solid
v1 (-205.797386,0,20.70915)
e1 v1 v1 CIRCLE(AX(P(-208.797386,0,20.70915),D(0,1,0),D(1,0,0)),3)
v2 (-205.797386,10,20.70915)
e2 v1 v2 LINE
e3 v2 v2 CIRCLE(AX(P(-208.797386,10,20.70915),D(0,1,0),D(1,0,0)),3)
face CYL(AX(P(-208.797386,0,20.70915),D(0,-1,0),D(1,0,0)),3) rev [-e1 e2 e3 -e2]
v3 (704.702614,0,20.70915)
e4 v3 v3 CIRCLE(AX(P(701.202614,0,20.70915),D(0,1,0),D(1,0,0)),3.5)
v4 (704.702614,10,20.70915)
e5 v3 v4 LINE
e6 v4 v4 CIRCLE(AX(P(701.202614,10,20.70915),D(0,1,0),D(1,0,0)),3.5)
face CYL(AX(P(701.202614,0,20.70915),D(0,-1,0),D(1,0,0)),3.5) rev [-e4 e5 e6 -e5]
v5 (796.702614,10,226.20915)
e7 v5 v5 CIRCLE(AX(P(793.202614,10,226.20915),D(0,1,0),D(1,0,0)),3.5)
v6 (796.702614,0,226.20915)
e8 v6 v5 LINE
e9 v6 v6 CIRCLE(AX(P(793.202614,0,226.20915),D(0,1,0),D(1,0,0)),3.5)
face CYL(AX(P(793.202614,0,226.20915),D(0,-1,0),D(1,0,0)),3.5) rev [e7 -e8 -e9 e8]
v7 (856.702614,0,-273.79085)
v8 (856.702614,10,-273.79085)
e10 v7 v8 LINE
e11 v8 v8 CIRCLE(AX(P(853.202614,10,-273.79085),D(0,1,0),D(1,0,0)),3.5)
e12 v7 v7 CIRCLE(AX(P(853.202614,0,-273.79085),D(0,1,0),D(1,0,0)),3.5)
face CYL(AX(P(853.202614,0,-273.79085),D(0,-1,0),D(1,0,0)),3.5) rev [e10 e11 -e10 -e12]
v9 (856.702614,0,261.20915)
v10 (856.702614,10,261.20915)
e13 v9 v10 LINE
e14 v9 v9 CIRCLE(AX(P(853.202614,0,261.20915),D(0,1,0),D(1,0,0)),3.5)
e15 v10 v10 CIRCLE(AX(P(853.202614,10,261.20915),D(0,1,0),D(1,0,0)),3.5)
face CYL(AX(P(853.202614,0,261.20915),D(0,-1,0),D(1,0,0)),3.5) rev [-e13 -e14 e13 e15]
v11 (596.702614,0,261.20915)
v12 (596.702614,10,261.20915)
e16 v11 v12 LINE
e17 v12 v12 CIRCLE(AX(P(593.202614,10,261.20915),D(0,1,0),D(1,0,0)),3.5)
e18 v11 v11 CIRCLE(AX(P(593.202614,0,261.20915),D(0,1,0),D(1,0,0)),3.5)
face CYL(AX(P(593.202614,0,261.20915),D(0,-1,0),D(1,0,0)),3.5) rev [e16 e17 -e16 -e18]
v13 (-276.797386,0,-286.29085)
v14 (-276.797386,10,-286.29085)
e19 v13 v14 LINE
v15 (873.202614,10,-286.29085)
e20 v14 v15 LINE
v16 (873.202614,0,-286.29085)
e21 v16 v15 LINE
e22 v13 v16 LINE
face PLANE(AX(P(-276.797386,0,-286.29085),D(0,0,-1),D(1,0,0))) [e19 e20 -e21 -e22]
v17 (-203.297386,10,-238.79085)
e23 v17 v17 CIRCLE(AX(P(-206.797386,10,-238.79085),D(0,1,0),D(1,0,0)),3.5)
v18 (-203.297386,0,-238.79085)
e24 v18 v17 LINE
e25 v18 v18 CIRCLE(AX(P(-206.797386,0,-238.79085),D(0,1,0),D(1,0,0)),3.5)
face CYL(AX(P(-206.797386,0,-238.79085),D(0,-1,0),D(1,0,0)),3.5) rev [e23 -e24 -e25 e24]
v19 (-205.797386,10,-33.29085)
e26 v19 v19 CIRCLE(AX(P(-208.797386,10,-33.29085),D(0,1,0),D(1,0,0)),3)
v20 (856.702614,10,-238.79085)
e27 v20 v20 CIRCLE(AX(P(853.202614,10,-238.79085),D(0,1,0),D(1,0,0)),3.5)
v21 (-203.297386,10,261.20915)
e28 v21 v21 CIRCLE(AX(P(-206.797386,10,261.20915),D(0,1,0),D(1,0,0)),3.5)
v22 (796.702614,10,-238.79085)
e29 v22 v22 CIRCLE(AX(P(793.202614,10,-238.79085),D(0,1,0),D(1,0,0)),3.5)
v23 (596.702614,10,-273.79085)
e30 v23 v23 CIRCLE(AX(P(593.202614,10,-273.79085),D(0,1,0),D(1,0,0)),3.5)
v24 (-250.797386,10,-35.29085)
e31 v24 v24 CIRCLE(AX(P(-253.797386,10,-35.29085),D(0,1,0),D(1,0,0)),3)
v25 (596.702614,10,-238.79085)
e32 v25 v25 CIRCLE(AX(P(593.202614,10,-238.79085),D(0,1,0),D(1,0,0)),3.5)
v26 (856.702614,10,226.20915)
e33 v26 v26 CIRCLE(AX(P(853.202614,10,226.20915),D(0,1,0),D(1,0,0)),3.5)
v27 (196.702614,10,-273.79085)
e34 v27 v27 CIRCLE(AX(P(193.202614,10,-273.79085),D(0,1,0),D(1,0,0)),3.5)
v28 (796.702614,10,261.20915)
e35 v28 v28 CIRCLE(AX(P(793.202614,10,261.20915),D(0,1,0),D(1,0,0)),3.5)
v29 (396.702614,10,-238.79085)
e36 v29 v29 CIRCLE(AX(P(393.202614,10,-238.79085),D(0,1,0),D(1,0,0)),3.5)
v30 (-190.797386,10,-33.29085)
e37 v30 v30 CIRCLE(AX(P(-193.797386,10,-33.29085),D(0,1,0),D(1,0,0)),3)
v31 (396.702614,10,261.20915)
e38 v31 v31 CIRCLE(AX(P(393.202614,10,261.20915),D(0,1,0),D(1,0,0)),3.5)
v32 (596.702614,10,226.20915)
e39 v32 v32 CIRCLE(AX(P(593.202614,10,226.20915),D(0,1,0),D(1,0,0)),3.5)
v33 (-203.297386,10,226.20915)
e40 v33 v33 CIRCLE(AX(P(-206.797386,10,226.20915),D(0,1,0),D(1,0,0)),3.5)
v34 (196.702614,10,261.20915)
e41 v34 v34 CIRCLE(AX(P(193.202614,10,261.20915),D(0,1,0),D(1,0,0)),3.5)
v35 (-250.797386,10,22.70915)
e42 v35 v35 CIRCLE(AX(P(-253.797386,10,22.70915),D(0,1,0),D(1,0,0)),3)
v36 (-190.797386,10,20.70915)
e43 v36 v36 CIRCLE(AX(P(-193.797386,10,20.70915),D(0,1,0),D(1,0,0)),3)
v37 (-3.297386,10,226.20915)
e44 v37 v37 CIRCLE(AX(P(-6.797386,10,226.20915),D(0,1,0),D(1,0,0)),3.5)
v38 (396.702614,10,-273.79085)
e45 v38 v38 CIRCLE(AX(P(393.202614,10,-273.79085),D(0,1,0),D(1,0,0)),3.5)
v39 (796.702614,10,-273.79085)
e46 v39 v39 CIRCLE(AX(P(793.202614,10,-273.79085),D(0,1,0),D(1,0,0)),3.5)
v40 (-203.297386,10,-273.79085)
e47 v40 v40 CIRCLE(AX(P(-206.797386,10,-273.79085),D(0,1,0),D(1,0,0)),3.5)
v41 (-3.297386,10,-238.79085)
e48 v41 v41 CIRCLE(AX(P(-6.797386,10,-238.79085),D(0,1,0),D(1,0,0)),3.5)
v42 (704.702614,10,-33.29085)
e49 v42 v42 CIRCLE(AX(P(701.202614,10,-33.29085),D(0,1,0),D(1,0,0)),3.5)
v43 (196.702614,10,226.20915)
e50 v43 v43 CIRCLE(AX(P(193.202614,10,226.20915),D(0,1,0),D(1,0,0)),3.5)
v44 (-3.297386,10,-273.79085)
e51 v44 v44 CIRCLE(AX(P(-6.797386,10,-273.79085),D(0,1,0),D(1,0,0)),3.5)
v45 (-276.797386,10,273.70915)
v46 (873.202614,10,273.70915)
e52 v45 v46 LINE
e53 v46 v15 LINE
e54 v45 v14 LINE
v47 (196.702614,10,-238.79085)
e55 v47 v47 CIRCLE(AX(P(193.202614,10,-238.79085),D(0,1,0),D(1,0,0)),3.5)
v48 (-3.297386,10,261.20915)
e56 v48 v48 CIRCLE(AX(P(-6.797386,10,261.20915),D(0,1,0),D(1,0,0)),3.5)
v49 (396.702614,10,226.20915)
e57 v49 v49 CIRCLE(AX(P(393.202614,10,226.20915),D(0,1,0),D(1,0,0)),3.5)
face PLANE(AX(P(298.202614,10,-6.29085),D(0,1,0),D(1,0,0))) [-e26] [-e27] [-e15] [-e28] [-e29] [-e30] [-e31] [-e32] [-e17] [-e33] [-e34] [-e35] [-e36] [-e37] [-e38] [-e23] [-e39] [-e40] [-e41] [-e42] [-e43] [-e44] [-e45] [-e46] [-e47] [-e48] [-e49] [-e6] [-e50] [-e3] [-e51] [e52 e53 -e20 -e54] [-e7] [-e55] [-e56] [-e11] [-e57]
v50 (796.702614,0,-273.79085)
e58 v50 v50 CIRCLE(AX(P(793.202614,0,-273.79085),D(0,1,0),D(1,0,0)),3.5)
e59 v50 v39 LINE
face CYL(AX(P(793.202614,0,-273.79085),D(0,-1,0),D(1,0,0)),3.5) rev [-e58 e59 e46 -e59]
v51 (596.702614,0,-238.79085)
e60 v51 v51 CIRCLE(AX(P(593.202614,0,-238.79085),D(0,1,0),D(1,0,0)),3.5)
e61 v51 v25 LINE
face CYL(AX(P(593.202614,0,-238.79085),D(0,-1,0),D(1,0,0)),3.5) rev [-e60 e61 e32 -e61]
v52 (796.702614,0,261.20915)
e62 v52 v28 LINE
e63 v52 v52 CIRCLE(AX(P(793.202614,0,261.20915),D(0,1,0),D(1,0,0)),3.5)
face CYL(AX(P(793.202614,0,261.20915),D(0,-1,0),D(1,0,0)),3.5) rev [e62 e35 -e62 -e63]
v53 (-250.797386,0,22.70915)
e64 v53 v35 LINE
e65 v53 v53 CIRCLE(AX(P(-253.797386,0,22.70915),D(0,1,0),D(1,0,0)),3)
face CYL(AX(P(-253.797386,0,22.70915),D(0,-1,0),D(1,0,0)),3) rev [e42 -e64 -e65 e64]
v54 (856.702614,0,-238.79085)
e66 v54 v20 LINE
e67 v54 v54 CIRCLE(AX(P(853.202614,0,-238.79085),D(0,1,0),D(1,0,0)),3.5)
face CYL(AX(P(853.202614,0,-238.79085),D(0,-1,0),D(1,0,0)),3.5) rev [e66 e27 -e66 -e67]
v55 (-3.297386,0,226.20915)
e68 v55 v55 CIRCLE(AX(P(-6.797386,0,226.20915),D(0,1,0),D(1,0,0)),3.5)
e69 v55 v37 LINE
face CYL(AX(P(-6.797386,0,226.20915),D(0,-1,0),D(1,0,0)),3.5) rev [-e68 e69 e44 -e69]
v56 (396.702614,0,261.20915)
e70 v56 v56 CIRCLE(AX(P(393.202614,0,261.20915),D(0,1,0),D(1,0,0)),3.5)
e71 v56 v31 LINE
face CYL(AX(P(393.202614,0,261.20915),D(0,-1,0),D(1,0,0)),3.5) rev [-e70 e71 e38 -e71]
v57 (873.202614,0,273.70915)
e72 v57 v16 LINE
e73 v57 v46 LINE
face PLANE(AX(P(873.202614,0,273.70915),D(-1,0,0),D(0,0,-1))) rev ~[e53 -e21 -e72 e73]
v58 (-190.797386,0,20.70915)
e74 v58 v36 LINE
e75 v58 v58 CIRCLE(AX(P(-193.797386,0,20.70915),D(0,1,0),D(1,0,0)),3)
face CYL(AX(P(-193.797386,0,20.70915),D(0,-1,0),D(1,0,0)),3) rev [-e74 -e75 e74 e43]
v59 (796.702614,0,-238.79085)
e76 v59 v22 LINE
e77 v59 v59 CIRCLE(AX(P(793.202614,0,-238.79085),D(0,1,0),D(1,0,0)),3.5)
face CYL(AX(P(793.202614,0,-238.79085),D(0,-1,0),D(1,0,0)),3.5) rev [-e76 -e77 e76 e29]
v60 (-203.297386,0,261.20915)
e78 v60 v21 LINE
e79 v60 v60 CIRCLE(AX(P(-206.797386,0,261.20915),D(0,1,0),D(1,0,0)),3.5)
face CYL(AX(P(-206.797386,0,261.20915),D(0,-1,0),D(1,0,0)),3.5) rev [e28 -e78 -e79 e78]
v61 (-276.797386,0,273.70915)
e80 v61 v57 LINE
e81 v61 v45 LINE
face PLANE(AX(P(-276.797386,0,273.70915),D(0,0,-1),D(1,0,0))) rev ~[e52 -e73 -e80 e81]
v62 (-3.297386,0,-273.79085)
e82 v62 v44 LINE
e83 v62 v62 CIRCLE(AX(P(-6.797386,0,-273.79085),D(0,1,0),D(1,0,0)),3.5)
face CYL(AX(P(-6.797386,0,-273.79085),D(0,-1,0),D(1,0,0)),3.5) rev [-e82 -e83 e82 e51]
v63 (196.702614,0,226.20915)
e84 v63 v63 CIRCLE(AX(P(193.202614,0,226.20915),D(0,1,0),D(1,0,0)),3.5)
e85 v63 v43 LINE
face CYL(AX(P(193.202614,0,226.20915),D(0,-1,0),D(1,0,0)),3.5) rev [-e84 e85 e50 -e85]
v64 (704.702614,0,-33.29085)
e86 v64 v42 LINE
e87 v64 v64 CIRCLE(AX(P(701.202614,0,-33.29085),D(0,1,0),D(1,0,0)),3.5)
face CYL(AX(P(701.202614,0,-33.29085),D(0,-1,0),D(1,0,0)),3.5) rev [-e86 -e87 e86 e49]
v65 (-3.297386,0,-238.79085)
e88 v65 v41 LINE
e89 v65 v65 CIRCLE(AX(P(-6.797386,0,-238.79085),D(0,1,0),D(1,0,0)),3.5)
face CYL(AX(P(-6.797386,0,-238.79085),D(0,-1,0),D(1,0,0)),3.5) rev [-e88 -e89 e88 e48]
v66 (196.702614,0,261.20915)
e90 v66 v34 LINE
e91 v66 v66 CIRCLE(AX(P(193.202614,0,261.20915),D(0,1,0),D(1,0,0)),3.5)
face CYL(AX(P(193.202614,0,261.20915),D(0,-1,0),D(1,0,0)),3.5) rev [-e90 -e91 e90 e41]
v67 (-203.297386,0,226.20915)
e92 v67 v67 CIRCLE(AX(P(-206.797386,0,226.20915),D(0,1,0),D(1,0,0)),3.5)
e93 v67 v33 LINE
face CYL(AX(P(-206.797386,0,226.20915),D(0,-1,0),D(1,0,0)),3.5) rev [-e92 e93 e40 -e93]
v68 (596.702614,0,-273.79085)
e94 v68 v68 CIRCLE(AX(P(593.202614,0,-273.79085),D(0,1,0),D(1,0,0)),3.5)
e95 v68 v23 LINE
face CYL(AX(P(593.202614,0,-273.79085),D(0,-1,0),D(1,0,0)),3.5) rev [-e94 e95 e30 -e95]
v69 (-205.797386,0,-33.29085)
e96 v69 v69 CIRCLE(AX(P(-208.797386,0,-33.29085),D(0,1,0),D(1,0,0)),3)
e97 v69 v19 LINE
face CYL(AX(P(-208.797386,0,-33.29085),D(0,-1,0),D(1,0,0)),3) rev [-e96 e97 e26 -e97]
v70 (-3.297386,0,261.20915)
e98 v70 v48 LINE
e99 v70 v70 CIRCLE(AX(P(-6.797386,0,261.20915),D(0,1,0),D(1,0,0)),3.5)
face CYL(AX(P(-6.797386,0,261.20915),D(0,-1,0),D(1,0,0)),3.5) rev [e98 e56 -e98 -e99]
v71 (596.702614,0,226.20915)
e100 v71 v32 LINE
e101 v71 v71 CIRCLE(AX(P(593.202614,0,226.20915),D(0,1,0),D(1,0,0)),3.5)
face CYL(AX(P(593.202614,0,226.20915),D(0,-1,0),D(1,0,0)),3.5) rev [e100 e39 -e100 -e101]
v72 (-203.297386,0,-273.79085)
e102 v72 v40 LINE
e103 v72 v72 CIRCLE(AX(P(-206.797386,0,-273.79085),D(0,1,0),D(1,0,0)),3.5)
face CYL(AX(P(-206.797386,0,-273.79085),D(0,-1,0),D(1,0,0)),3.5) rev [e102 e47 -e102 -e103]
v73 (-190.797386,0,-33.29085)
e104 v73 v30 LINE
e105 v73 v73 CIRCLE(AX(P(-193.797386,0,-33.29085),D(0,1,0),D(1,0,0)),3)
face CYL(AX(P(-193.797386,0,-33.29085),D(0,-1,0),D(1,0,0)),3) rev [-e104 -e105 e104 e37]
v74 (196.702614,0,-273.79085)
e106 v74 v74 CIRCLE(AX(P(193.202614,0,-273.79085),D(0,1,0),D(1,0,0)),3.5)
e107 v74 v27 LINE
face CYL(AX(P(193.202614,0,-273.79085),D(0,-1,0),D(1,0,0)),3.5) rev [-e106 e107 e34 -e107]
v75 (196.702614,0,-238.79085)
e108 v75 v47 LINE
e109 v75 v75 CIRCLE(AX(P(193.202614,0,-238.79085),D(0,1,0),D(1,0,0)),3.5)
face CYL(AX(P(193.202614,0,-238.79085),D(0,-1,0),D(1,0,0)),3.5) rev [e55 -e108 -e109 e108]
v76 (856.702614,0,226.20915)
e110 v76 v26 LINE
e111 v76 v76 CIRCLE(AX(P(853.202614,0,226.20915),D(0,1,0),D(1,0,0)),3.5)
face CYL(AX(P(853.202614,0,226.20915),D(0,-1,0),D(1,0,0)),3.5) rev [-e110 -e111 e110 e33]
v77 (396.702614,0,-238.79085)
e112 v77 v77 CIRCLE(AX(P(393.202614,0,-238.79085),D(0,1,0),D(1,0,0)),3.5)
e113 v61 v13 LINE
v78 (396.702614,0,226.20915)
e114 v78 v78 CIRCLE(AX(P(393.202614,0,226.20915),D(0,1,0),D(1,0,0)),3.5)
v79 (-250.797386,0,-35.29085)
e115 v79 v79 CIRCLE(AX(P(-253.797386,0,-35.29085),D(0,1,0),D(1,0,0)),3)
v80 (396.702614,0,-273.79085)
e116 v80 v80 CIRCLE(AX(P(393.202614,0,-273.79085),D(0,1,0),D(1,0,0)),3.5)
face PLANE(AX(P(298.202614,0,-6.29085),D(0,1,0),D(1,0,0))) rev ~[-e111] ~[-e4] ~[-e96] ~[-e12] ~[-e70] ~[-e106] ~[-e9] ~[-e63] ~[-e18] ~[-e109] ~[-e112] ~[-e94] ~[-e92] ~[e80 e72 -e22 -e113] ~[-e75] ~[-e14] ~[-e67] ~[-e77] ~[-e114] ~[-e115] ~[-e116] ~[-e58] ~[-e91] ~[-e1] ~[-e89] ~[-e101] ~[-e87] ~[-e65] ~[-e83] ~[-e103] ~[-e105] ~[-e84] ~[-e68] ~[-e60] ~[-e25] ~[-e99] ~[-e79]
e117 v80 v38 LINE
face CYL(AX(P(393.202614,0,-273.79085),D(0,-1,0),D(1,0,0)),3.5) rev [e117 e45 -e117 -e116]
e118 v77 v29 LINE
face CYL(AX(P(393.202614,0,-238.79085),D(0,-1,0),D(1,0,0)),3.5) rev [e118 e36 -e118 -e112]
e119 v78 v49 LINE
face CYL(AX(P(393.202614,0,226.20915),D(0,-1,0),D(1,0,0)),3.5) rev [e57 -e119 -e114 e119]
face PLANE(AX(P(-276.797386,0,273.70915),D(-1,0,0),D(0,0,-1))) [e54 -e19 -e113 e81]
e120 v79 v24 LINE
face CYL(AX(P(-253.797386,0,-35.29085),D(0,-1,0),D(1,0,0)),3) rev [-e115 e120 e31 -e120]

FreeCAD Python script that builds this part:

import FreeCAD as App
import Part
import Sketcher

V = App.Vector
Q = App.Units.Quantity


def add_polygon(sketch, points):
    """Adds a closed chain of lines whose ends are joined by coincident constraints."""
    first, n = sketch.GeometryCount, len(points)
    for a, b in zip(points, points[1:] + points[:1]):
        sketch.addGeometry(Part.LineSegment(App.Vector(*a, 0), App.Vector(*b, 0)), False)
    for i in range(n):
        sketch.addConstraint(Sketcher.Constraint("Coincident", first + i, 2, first + (i + 1) % n, 1))

doc = App.newDocument("Part")
body = doc.addObject("PartDesign::Body", "Body")

sketch1 = doc.addObject("Sketcher::SketchObject", "Sketch")
body.addObject(sketch1)
sketch1.AttachmentSupport = (doc.XZ_Plane, [""])
sketch1.MapMode = "FlatFace"
add_polygon(sketch1, [(-276.8, -286.3), (-276.8, 273.7), (873.2, 273.7), (873.2, -286.3)])
sketch1.addGeometry(Part.Circle(V(-206.8, 261.2, 0), V(0, 0, 1), 3.5), False)
sketch1.addGeometry(Part.Circle(V(-206.8, 226.2, 0), V(0, 0, 1), 3.5), False)
sketch1.addGeometry(Part.Circle(V(-6.8, 261.2, 0), V(0, 0, 1), 3.5), False)
sketch1.addGeometry(Part.Circle(V(-6.8, 226.2, 0), V(0, 0, 1), 3.5), False)
sketch1.addGeometry(Part.Circle(V(193.2, 261.2, 0), V(0, 0, 1), 3.5), False)
sketch1.addGeometry(Part.Circle(V(193.2, 226.2, 0), V(0, 0, 1), 3.5), False)
sketch1.addGeometry(Part.Circle(V(-253.8, 22.7, 0), V(0, 0, 1), 3), False)
sketch1.addGeometry(Part.Circle(V(-208.8, 20.7, 0), V(0, 0, 1), 3), False)
sketch1.addGeometry(Part.Circle(V(-193.8, 20.7, 0), V(0, 0, 1), 3), False)
sketch1.addGeometry(Part.Circle(V(393.2, 261.2, 0), V(0, 0, 1), 3.5), False)
sketch1.addGeometry(Part.Circle(V(393.2, 226.2, 0), V(0, 0, 1), 3.5), False)
sketch1.addGeometry(Part.Circle(V(593.2, 261.2, 0), V(0, 0, 1), 3.5), False)
sketch1.addGeometry(Part.Circle(V(593.2, 226.2, 0), V(0, 0, 1), 3.5), False)
sketch1.addGeometry(Part.Circle(V(793.2, 261.2, 0), V(0, 0, 1), 3.5), False)
sketch1.addGeometry(Part.Circle(V(853.2, 261.2, 0), V(0, 0, 1), 3.5), False)
sketch1.addGeometry(Part.Circle(V(793.2, 226.2, 0), V(0, 0, 1), 3.5), False)
sketch1.addGeometry(Part.Circle(V(853.2, 226.2, 0), V(0, 0, 1), 3.5), False)
sketch1.addGeometry(Part.Circle(V(701.2, 20.7, 0), V(0, 0, 1), 3.5), False)
sketch1.addGeometry(Part.Circle(V(-253.8, -35.3, 0), V(0, 0, 1), 3), False)
sketch1.addGeometry(Part.Circle(V(-208.8, -33.3, 0), V(0, 0, 1), 3), False)
sketch1.addGeometry(Part.Circle(V(-193.8, -33.3, 0), V(0, 0, 1), 3), False)
sketch1.addGeometry(Part.Circle(V(-206.8, -238.8, 0), V(0, 0, 1), 3.5), False)
sketch1.addGeometry(Part.Circle(V(-206.8, -273.8, 0), V(0, 0, 1), 3.5), False)
sketch1.addGeometry(Part.Circle(V(-6.8, -238.8, 0), V(0, 0, 1), 3.5), False)
sketch1.addGeometry(Part.Circle(V(-6.8, -273.8, 0), V(0, 0, 1), 3.5), False)
sketch1.addGeometry(Part.Circle(V(193.2, -238.8, 0), V(0, 0, 1), 3.5), False)
sketch1.addGeometry(Part.Circle(V(193.2, -273.8, 0), V(0, 0, 1), 3.5), False)
sketch1.addGeometry(Part.Circle(V(701.2, -33.3, 0), V(0, 0, 1), 3.5), False)
sketch1.addGeometry(Part.Circle(V(393.2, -238.8, 0), V(0, 0, 1), 3.5), False)
sketch1.addGeometry(Part.Circle(V(393.2, -273.8, 0), V(0, 0, 1), 3.5), False)
sketch1.addGeometry(Part.Circle(V(593.2, -238.8, 0), V(0, 0, 1), 3.5), False)
sketch1.addGeometry(Part.Circle(V(593.2, -273.8, 0), V(0, 0, 1), 3.5), False)
sketch1.addGeometry(Part.Circle(V(793.2, -238.8, 0), V(0, 0, 1), 3.5), False)
sketch1.addGeometry(Part.Circle(V(853.2, -238.8, 0), V(0, 0, 1), 3.5), False)
sketch1.addGeometry(Part.Circle(V(793.2, -273.8, 0), V(0, 0, 1), 3.5), False)
sketch1.addGeometry(Part.Circle(V(853.2, -273.8, 0), V(0, 0, 1), 3.5), False)
sketch1.addConstraint([
    Sketcher.Constraint("Vertical", 0),
    Sketcher.Constraint("Horizontal", 1),
    Sketcher.Constraint("Vertical", 2),
    Sketcher.Constraint("Horizontal", 3),
    Sketcher.Constraint("Equal", 4, 5),
    Sketcher.Constraint("Equal", 5, 6),
    Sketcher.Constraint("Equal", 6, 7),
    Sketcher.Constraint("Equal", 7, 8),
    Sketcher.Constraint("Equal", 8, 9),
    Sketcher.Constraint("Equal", 10, 11),
    Sketcher.Constraint("Equal", 11, 12),
    Sketcher.Constraint("Equal", 9, 13),
    Sketcher.Constraint("Equal", 13, 14),
    Sketcher.Constraint("Equal", 14, 15),
    Sketcher.Constraint("Equal", 15, 16),
    Sketcher.Constraint("Equal", 16, 17),
    Sketcher.Constraint("Equal", 17, 18),
    Sketcher.Constraint("Equal", 18, 19),
    Sketcher.Constraint("Equal", 19, 20),
    Sketcher.Constraint("Equal", 20, 21),
    Sketcher.Constraint("Equal", 12, 22),
    Sketcher.Constraint("Equal", 22, 23),
    Sketcher.Constraint("Equal", 23, 24),
    Sketcher.Constraint("Equal", 21, 25),
    Sketcher.Constraint("Equal", 25, 26),
    Sketcher.Constraint("Equal", 26, 27),
    Sketcher.Constraint("Equal", 27, 28),
    Sketcher.Constraint("Equal", 28, 29),
    Sketcher.Constraint("Equal", 29, 30),
    Sketcher.Constraint("Equal", 30, 31),
    Sketcher.Constraint("Equal", 31, 32),
    Sketcher.Constraint("Equal", 32, 33),
    Sketcher.Constraint("Equal", 33, 34),
    Sketcher.Constraint("Equal", 34, 35),
    Sketcher.Constraint("Equal", 35, 36),
    Sketcher.Constraint("Equal", 36, 37),
    Sketcher.Constraint("Equal", 37, 38),
    Sketcher.Constraint("Equal", 38, 39),
    Sketcher.Constraint("Horizontal", 4, 3, 6, 3),
    Sketcher.Constraint("Horizontal", 5, 3, 7, 3),
    Sketcher.Constraint("Horizontal", 6, 3, 8, 3),
    Sketcher.Constraint("Horizontal", 7, 3, 9, 3),
    Sketcher.Constraint("Horizontal", 11, 3, 12, 3),
    Sketcher.Constraint("Horizontal", 8, 3, 13, 3),
    Sketcher.Constraint("Horizontal", 9, 3, 14, 3),
    Sketcher.Constraint("Horizontal", 13, 3, 15, 3),
    Sketcher.Constraint("Horizontal", 14, 3, 16, 3),
    Sketcher.Constraint("Horizontal", 15, 3, 17, 3),
    Sketcher.Constraint("Horizontal", 17, 3, 18, 3),
    Sketcher.Constraint("Horizontal", 16, 3, 19, 3),
    Sketcher.Constraint("Horizontal", 19, 3, 20, 3),
    Sketcher.Constraint("Horizontal", 12, 3, 21, 3),
    Sketcher.Constraint("Horizontal", 23, 3, 24, 3),
    Sketcher.Constraint("Horizontal", 25, 3, 27, 3),
    Sketcher.Constraint("Horizontal", 26, 3, 28, 3),
    Sketcher.Constraint("Horizontal", 27, 3, 29, 3),
    Sketcher.Constraint("Horizontal", 28, 3, 30, 3),
    Sketcher.Constraint("Horizontal", 24, 3, 31, 3),
    Sketcher.Constraint("Horizontal", 29, 3, 32, 3),
    Sketcher.Constraint("Horizontal", 30, 3, 33, 3),
    Sketcher.Constraint("Horizontal", 32, 3, 34, 3),
    Sketcher.Constraint("Horizontal", 33, 3, 35, 3),
    Sketcher.Constraint("Horizontal", 34, 3, 36, 3),
    Sketcher.Constraint("Horizontal", 36, 3, 37, 3),
    Sketcher.Constraint("Horizontal", 35, 3, 38, 3),
    Sketcher.Constraint("Horizontal", 38, 3, 39, 3),
    Sketcher.Constraint("Vertical", 4, 3, 5, 3),
    Sketcher.Constraint("Vertical", 6, 3, 7, 3),
    Sketcher.Constraint("Vertical", 8, 3, 9, 3),
    Sketcher.Constraint("Vertical", 13, 3, 14, 3),
    Sketcher.Constraint("Vertical", 15, 3, 16, 3),
    Sketcher.Constraint("Vertical", 17, 3, 19, 3),
    Sketcher.Constraint("Vertical", 18, 3, 20, 3),
    Sketcher.Constraint("Vertical", 10, 3, 22, 3),
    Sketcher.Constraint("Vertical", 11, 3, 23, 3),
    Sketcher.Constraint("Vertical", 12, 3, 24, 3),
    Sketcher.Constraint("Vertical", 5, 3, 25, 3),
    Sketcher.Constraint("Vertical", 25, 3, 26, 3),
    Sketcher.Constraint("Vertical", 7, 3, 27, 3),
    Sketcher.Constraint("Vertical", 27, 3, 28, 3),
    Sketcher.Constraint("Vertical", 9, 3, 29, 3),
    Sketcher.Constraint("Vertical", 29, 3, 30, 3),
    Sketcher.Constraint("Vertical", 21, 3, 31, 3),
    Sketcher.Constraint("Vertical", 14, 3, 32, 3),
    Sketcher.Constraint("Vertical", 32, 3, 33, 3),
    Sketcher.Constraint("Vertical", 16, 3, 34, 3),
    Sketcher.Constraint("Vertical", 34, 3, 35, 3),
    Sketcher.Constraint("Vertical", 19, 3, 36, 3),
    Sketcher.Constraint("Vertical", 20, 3, 37, 3),
    Sketcher.Constraint("Vertical", 36, 3, 38, 3),
    Sketcher.Constraint("Vertical", 37, 3, 39, 3),
    Sketcher.Constraint("Diameter", 4, Q("7 mm")),
    Sketcher.Constraint("Diameter", 10, Q("6 mm")),
    Sketcher.Constraint("DistanceX", 1, 1, 1, 2, Q("1150 mm")),
    Sketcher.Constraint("DistanceY", 0, 1, 0, 2, Q("560 mm")),
    Sketcher.Constraint("DistanceY", 5, 3, 4, 3, Q("35 mm")),
    Sketcher.Constraint("DistanceX", 4, 3, 6, 3, Q("200 mm")),
    Sketcher.Constraint("DistanceX", 6, 3, 8, 3, Q("200 mm")),
    Sketcher.Constraint("DistanceX", 10, 3, 5, 3, Q("47 mm")),
    Sketcher.Constraint("DistanceX", 10, 3, 11, 3, Q("45 mm")),
    Sketcher.Constraint("DistanceY", 11, 3, 10, 3, Q("2 mm")),
    Sketcher.Constraint("DistanceX", 11, 3, 12, 3, Q("15 mm")),
    Sketcher.Constraint("DistanceX", 8, 3, 13, 3, Q("200 mm")),
    Sketcher.Constraint("DistanceX", 13, 3, 15, 3, Q("200 mm")),
    Sketcher.Constraint("DistanceX", 15, 3, 17, 3, Q("200 mm")),
    Sketcher.Constraint("DistanceX", 17, 3, 18, 3, Q("60 mm")),
    Sketcher.Constraint("DistanceX", 21, 3, 19, 3, Q("92 mm")),
    Sketcher.Constraint("DistanceY", 22, 3, 10, 3, Q("58 mm")),
    Sketcher.Constraint("DistanceY", 22, 3, 23, 3, Q("2 mm")),
    Sketcher.Constraint("DistanceY", 26, 3, 25, 3, Q("35 mm")),
    Sketcher.Constraint("DistanceX", 0, 2, 4, 3, Q("70 mm")),
    Sketcher.Constraint("DistanceY", 10, 3, 0, 2, Q("251 mm")),
    Sketcher.Constraint("DistanceY", 10, 3, 5, 3, Q("203.5 mm")),
    Sketcher.Constraint("DistanceY", 25, 3, 23, 3, Q("205.5 mm")),
    Sketcher.Constraint("DistanceY", -1, 1, 4, 3, Q("261.20915 mm")),
    Sketcher.Constraint("DistanceX", 4, 3, -1, 1, Q("206.797386 mm")),
])
pad1 = doc.addObject("PartDesign::Pad", "Pad")
body.addObject(pad1)
pad1.Profile = sketch1
pad1.Length = 10
pad1.Reversed = True

doc.recompute()
